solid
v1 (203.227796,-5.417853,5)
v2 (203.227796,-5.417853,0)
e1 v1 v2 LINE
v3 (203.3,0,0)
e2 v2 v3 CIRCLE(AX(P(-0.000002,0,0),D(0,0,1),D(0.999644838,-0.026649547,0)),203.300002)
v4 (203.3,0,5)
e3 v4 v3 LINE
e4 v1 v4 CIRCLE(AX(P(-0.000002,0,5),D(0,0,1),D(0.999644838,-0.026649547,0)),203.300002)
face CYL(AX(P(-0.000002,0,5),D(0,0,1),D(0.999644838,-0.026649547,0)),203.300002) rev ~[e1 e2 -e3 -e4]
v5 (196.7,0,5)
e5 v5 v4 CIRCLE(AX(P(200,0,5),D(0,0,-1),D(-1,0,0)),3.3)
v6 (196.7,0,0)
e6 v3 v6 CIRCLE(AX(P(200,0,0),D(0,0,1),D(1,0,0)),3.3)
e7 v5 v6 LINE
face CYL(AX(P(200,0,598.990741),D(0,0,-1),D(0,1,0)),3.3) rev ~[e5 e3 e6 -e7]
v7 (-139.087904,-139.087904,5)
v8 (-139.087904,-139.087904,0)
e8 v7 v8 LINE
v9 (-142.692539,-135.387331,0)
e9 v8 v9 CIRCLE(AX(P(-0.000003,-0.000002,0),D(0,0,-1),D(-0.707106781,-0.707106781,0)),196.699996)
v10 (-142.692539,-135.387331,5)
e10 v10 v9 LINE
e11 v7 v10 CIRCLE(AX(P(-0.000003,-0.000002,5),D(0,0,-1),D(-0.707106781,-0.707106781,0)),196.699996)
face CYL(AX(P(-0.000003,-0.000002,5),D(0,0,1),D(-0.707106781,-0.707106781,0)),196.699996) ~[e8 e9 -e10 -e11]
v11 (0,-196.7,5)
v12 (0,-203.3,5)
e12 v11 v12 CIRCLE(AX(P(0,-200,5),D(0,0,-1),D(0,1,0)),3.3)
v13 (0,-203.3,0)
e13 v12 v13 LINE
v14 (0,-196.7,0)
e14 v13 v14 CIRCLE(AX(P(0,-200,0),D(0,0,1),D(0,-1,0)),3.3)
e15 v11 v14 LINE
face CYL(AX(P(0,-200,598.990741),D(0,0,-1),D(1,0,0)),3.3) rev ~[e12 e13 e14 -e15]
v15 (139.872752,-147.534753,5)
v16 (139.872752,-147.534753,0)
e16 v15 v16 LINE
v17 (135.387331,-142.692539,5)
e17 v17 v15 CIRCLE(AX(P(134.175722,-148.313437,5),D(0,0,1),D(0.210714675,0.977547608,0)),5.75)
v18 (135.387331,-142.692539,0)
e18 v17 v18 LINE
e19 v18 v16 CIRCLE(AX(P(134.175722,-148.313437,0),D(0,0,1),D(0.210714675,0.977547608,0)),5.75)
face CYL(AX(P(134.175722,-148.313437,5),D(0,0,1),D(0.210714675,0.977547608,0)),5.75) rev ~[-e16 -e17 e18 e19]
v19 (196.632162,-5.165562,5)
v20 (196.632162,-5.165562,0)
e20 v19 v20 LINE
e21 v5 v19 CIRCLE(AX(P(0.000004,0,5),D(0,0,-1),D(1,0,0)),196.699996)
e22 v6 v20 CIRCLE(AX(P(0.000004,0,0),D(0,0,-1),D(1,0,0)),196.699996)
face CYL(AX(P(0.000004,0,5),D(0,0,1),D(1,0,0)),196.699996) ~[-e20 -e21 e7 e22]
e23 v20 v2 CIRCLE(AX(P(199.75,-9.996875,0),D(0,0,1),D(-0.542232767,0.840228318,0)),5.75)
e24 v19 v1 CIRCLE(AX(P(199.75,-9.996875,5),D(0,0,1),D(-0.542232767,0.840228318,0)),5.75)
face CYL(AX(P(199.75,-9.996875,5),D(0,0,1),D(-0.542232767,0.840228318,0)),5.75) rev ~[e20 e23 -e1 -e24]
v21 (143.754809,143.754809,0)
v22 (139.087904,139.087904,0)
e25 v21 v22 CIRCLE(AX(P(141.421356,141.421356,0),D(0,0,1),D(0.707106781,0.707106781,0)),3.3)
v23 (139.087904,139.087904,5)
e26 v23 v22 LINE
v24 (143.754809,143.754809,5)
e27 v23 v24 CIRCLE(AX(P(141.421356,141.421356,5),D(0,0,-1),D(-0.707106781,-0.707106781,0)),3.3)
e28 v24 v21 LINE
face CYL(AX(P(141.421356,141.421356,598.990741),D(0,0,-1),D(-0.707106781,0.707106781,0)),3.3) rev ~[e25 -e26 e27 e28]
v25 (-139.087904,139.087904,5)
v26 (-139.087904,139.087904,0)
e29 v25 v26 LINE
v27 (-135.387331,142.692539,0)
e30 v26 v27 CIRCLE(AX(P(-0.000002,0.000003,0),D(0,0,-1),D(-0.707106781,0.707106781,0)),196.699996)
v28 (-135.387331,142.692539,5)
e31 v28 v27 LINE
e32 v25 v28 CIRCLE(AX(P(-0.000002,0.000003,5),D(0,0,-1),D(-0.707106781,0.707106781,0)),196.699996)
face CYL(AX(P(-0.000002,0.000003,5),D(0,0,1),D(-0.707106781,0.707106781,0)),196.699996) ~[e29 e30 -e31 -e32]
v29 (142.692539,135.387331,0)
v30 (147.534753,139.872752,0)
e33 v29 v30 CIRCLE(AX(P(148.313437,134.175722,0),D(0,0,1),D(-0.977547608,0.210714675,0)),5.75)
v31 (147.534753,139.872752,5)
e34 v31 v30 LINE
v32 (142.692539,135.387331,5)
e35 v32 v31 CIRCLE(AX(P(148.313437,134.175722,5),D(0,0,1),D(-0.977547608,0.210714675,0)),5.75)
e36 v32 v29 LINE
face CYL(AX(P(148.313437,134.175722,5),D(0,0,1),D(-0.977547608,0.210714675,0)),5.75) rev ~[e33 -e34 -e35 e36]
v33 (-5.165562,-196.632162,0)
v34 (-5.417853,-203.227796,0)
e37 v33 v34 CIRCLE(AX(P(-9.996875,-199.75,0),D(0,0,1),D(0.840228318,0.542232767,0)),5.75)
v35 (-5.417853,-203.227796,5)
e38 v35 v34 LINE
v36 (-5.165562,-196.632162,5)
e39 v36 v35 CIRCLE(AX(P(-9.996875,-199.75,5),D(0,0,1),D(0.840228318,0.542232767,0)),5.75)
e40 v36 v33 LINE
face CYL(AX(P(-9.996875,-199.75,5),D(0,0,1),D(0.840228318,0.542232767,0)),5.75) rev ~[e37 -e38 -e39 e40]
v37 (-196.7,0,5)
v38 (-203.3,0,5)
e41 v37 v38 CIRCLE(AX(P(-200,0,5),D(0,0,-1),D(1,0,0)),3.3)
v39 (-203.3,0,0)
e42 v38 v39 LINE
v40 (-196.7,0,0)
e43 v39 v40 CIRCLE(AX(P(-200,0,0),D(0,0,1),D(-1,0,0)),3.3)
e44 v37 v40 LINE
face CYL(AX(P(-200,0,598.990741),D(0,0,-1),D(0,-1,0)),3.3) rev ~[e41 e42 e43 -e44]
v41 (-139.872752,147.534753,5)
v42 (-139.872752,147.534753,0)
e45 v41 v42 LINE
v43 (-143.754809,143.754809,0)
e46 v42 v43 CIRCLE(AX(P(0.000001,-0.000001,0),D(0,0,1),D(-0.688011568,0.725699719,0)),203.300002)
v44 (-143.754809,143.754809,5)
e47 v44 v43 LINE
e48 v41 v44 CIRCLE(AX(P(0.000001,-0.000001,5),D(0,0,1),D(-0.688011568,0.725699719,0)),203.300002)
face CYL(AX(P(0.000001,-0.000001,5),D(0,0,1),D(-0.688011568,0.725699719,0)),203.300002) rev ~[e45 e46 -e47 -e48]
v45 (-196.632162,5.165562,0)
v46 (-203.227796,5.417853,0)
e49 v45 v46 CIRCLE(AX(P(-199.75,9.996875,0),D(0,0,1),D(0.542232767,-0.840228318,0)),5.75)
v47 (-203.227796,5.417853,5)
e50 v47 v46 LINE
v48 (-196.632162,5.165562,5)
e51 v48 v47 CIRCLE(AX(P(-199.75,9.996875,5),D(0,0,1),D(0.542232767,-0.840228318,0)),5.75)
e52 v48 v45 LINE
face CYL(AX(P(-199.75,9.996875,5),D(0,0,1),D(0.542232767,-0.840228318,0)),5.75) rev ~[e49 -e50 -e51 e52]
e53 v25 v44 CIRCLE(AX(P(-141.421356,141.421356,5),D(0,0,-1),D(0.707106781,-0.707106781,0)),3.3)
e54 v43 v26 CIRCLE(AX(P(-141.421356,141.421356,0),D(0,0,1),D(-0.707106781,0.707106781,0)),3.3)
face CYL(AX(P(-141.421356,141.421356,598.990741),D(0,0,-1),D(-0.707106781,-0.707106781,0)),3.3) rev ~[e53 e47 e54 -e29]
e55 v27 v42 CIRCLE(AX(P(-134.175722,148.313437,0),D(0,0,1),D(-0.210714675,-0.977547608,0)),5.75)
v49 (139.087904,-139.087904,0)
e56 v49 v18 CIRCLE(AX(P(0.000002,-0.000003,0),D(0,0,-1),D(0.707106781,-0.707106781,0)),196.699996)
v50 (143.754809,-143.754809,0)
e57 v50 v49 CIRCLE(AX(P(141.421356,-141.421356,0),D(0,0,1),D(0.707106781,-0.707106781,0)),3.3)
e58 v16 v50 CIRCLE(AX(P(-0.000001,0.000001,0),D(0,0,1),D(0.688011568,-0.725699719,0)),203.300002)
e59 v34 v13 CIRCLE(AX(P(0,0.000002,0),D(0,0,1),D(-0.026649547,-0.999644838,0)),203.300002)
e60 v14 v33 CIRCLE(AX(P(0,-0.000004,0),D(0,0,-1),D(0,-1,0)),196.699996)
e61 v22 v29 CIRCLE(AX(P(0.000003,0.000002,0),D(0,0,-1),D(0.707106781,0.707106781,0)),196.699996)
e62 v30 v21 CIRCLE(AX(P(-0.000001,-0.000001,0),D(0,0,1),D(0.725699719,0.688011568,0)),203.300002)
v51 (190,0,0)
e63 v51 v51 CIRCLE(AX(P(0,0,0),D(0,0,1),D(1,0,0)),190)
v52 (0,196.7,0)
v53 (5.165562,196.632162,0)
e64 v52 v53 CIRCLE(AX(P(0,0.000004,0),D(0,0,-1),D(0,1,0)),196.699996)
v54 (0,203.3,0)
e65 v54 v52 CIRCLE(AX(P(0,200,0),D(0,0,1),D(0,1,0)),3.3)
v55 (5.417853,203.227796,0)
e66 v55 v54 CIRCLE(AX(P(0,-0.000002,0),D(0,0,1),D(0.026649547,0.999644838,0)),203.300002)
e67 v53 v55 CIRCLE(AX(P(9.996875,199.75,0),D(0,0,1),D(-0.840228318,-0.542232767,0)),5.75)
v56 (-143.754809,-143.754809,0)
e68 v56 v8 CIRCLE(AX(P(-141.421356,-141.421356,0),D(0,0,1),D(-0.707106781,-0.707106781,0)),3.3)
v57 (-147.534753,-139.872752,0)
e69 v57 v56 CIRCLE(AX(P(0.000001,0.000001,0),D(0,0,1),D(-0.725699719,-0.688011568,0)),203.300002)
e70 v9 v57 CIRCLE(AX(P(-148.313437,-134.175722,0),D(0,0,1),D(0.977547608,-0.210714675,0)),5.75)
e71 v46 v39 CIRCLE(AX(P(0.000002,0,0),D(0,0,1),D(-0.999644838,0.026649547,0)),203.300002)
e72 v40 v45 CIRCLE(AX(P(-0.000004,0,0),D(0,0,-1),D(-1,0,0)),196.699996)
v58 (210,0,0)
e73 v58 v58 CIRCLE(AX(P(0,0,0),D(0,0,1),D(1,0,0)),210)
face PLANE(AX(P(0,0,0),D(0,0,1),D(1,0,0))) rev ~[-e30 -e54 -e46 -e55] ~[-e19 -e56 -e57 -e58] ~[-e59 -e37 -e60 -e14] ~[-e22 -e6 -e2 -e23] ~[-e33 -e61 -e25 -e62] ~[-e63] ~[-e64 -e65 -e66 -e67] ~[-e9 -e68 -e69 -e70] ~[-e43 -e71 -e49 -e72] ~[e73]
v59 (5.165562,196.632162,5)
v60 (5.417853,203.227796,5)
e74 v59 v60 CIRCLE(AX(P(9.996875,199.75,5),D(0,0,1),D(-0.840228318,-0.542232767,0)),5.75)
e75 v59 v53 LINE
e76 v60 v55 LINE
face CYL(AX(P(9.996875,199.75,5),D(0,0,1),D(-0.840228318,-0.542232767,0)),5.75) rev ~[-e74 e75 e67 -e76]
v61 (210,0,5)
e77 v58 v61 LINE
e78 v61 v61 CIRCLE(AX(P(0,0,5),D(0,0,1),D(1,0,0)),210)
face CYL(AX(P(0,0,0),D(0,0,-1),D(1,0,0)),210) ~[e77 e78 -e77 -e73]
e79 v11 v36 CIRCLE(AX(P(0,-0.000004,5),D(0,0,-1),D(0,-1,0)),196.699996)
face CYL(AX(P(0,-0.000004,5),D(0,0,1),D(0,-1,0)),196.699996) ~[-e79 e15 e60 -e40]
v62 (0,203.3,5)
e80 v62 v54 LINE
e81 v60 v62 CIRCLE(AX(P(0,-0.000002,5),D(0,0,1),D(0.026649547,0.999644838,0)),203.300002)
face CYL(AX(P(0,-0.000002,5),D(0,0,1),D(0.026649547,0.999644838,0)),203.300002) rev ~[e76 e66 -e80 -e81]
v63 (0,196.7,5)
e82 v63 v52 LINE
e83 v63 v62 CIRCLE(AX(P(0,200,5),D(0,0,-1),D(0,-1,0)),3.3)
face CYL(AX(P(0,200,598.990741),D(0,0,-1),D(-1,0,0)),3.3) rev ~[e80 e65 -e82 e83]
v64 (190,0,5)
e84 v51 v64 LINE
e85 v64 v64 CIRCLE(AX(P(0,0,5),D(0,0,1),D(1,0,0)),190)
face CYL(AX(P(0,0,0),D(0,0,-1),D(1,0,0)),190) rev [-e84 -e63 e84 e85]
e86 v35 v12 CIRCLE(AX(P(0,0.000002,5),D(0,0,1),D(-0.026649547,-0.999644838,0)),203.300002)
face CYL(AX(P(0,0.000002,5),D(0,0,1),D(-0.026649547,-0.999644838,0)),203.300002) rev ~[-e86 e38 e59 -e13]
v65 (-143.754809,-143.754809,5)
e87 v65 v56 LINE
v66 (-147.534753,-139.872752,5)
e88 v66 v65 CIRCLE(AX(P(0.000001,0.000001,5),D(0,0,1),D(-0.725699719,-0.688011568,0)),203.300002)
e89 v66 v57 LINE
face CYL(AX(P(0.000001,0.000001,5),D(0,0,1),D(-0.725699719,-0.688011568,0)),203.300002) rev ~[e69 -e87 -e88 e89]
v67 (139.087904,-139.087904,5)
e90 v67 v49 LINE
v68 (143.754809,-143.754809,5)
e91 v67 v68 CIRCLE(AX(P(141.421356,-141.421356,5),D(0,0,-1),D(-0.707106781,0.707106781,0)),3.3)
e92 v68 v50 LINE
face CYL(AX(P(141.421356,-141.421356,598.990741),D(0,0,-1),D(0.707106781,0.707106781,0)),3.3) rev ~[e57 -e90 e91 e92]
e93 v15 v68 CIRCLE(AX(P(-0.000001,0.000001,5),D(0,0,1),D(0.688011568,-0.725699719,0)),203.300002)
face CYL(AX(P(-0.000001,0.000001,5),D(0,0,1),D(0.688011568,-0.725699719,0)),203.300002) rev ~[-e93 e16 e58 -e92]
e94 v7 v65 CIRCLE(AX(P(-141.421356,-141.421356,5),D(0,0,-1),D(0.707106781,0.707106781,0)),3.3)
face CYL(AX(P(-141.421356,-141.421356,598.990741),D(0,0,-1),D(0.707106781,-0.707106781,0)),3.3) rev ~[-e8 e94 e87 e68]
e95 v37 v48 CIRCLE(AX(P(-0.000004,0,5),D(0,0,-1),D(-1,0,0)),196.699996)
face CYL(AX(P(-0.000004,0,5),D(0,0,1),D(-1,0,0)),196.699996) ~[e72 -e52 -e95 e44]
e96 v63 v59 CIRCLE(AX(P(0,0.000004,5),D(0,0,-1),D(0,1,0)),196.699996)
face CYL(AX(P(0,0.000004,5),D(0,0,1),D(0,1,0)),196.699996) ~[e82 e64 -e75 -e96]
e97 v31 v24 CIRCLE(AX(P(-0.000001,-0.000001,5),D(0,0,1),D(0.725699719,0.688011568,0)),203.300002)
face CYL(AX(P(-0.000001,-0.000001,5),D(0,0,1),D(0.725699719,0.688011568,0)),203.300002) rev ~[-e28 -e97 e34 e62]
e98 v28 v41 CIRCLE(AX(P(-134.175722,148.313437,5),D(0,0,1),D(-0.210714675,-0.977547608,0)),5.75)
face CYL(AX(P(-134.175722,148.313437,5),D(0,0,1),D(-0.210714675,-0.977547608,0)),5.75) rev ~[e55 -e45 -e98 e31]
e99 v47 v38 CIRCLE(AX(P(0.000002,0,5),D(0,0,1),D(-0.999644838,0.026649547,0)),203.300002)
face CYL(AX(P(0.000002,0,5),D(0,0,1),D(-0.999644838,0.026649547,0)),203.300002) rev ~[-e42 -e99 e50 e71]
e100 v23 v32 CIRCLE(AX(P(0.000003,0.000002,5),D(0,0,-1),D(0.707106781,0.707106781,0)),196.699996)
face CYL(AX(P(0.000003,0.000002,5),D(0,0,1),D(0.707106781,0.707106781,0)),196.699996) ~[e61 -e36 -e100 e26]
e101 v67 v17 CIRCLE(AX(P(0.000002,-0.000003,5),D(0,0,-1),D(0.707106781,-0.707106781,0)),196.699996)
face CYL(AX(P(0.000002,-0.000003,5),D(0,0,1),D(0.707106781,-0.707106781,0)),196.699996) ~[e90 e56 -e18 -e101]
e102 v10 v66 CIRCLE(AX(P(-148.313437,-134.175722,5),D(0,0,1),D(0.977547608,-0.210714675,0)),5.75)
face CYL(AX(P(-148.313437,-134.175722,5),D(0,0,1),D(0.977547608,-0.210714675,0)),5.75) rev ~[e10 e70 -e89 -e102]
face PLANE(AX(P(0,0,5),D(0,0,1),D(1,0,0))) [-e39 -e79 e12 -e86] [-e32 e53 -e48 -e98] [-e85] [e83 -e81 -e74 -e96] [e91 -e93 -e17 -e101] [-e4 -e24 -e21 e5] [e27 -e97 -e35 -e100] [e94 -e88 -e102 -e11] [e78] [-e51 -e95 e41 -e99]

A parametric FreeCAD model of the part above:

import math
import FreeCAD as App
import Part
import Sketcher

doc = App.newDocument("Part")
body = doc.addObject("PartDesign::Body", "Body")

sketch1 = doc.addObject("Sketcher::SketchObject", "Sketch")
body.addObject(sketch1)
sketch1.AttachmentSupport = (doc.XY_Plane, [""])
sketch1.MapMode = "FlatFace"
sketch1.addGeometry([
    Part.Circle(App.Vector(0, 0, 0), App.Vector(0, 0, 1), 210),
    Part.Circle(App.Vector(0, 0, 0), App.Vector(0, 0, 1), 190),
], False)
sketch1.addConstraint([
    Sketcher.Constraint("Coincident", 0, 3, -1, 1),
    Sketcher.Constraint("Coincident", 1, 3, -1, 1),
    Sketcher.Constraint("Diameter", 0, 420.0),
    Sketcher.Constraint("Diameter", 1, 380.0),
])
pad1 = doc.addObject("PartDesign::Pad", "Pad")
body.addObject(pad1)
pad1.Profile = sketch1
pad1.Length = 5

sketch2 = doc.addObject("Sketcher::SketchObject", "Sketch001")
body.addObject(sketch2)
sketch2.AttachmentSupport = (doc.XY_Plane, [""])
sketch2.MapMode = "FlatFace"
sketch2.AttachmentOffset = App.Placement(App.Vector(0, 0, 5), App.Rotation())
sketch2.addGeometry(Part.Circle(App.Vector(0, 200, 0), App.Vector(0, 0, 1), 3.3), False)
sketch2.addConstraint([
    Sketcher.Constraint("PointOnObject", 0, 3, -2),
    Sketcher.Constraint("Diameter", 0, 6.6),
    Sketcher.Constraint("DistanceY", -1, 1, 0, 3, 200.0),
])
doc.recompute()
hole = doc.addObject("PartDesign::Hole", "Hole")
body.addObject(hole)
hole.Profile = sketch2
hole.ThreadType = "None"
hole.Diameter = 6.6
hole.DepthType = "ThroughAll"

sketch3 = doc.addObject("Sketcher::SketchObject", "Sketch002")
body.addObject(sketch3)
sketch3.AttachmentSupport = (doc.XY_Plane, [""])
sketch3.MapMode = "FlatFace"
sketch3.AttachmentOffset = App.Placement(App.Vector(0, 0, 5), App.Rotation())
sketch3.addGeometry([
    Part.ArcOfCircle(Part.Circle(App.Vector(9.996875, 199.75, 0), App.Vector(0, 0, 1), 5.75), math.radians(-147.164237), math.radians(142.783102)),
    Part.ArcOfCircle(Part.Circle(App.Vector(0, -0.000002, 0), App.Vector(0, 0, 1), 203.300002), math.radians(88.472913), math.radians(90)),
    Part.ArcOfCircle(Part.Circle(App.Vector(0, 200, 0), App.Vector(0, 0, 1), 3.3), math.radians(-90), math.radians(90)),
    Part.ArcOfCircle(Part.Circle(App.Vector(0, 0.000004, 0), App.Vector(0, 0, 1), 196.699996), math.radians(88.495176), math.radians(90)),
], False)
sketch3.addConstraint([
    Sketcher.Constraint("Coincident", 0, 2, 1, 1),
    Sketcher.Constraint("Tangent", 1, 2, 2, 2),
    Sketcher.Constraint("Tangent", 2, 1, 3, 2),
    Sketcher.Constraint("Coincident", 3, 1, 0, 1),
    Sketcher.Constraint("Coincident", 1, 3, -1, 1),
    Sketcher.Constraint("Coincident", 3, 3, -1, 1),
    Sketcher.Constraint("PointOnObject", 2, 3, -2),
    Sketcher.Constraint("Radius", 1, 203.300002),
    Sketcher.Constraint("Radius", 2, 3.3),
    Sketcher.Constraint("Radius", 0, 5.75),
    Sketcher.Constraint("DistanceY", -1, 1, 0, 3, 199.75),
    Sketcher.Constraint("DistanceX", -1, 1, 3, 1, 5.165562),
])
pocket1 = doc.addObject("PartDesign::Pocket", "Pocket")
body.addObject(pocket1)
pocket1.Profile = sketch3
pocket1.Length = 5
doc.recompute()

polarpattern = doc.addObject("PartDesign::PolarPattern", "PolarPattern")
body.addObject(polarpattern)
polarpattern.Originals = [hole, pocket1]
polarpattern.Axis = (doc.Z_Axis, [""])
polarpattern.Angle = 360
polarpattern.Occurrences = 8
body.Tip = polarpattern

doc.recompute()
